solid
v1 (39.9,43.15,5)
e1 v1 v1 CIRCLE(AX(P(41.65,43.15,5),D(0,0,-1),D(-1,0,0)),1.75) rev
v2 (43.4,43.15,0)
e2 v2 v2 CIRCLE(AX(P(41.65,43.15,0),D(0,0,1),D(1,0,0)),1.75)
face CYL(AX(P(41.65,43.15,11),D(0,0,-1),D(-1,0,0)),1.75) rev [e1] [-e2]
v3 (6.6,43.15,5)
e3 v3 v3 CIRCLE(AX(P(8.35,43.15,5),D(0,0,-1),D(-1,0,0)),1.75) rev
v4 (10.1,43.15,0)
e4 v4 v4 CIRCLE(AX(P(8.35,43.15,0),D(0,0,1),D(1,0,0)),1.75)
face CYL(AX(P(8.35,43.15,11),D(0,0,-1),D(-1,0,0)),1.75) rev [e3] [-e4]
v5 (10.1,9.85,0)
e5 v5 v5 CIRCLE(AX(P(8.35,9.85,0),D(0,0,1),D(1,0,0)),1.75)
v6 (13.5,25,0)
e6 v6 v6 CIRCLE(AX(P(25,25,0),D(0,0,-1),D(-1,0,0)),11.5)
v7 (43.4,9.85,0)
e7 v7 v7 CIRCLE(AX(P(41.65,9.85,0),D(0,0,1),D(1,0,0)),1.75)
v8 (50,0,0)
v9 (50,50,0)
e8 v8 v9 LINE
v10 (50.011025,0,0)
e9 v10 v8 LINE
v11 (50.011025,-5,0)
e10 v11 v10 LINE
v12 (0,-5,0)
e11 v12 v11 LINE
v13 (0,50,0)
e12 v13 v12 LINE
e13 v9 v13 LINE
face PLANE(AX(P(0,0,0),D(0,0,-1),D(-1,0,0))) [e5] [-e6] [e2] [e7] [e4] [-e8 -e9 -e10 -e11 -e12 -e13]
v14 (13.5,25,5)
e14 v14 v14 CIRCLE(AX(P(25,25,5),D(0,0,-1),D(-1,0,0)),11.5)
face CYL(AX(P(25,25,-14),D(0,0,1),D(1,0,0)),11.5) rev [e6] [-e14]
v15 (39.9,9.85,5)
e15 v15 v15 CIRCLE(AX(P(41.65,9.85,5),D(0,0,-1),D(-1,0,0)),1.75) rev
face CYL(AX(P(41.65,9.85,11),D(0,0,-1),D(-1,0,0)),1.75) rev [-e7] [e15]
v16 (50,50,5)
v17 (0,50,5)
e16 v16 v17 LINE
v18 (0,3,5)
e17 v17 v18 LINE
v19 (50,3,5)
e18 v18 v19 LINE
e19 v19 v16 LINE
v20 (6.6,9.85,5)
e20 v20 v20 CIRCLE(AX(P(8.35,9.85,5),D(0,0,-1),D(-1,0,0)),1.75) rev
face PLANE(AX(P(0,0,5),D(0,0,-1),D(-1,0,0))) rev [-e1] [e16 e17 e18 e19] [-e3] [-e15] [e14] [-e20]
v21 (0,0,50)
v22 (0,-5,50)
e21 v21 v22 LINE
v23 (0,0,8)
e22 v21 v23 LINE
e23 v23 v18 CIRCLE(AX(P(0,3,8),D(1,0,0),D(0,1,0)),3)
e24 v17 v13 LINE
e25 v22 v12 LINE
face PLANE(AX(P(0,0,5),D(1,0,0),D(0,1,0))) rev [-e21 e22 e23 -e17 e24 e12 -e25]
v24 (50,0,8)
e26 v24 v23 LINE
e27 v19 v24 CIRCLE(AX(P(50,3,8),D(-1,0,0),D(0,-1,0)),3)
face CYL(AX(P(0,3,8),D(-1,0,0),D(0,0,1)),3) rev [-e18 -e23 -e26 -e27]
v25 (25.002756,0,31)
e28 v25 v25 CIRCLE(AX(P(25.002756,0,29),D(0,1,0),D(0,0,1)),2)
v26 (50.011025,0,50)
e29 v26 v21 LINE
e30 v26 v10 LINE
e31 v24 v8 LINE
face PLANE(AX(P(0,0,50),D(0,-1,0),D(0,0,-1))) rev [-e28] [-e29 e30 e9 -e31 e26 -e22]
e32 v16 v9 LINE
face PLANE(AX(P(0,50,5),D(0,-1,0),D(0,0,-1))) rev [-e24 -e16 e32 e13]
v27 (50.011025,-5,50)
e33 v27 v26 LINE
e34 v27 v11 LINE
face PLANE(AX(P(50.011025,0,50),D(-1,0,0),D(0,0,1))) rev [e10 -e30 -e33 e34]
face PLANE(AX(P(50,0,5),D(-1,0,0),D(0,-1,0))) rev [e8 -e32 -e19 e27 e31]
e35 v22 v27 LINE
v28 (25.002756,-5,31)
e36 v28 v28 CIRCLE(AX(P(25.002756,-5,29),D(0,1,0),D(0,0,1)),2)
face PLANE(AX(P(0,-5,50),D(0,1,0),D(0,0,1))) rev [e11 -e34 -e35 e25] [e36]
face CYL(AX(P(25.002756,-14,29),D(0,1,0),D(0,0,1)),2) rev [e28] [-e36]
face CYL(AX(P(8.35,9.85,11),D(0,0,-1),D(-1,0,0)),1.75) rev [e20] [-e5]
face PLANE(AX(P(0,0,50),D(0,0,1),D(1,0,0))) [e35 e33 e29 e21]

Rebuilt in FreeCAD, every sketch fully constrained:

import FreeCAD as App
import Part
import Sketcher

V = App.Vector
Q = App.Units.Quantity


def edges_at(feature, points):
    """Names of the edges that pass closest to the given points."""
    edges = feature.Shape.Edges
    near = lambda p: min(range(len(edges)), key=lambda i: edges[i].distToShape(Part.Vertex(*p))[0])
    return sorted({f"Edge{near(p) + 1}" for p in points})

doc = App.newDocument("Part")
body = doc.addObject("PartDesign::Body", "Body")

# Sketch on XY plane
sketch1 = doc.addObject("Sketcher::SketchObject", "Sketch")
body.addObject(sketch1)
sketch1.AttachmentSupport = (doc.XY_Plane, [""])
sketch1.MapMode = "FlatFace"
sketch1.addGeometry(Part.LineSegment(V(0, 50, 0), V(0, 0, 0)), False)
sketch1.addGeometry(Part.LineSegment(V(0, 0, 0), V(50, 0, 0)), False)
sketch1.addGeometry(Part.LineSegment(V(50, 0, 0), V(50, 50, 0)), False)
sketch1.addGeometry(Part.LineSegment(V(50, 50, 0), V(0, 50, 0)), False)
sketch1.addConstraint(Sketcher.Constraint("Coincident", 0, 2, 1, 1))
sketch1.addConstraint(Sketcher.Constraint("Coincident", 1, 2, 2, 1))
sketch1.addConstraint(Sketcher.Constraint("Coincident", 2, 2, 3, 1))
sketch1.addConstraint(Sketcher.Constraint("Coincident", 3, 2, 0, 1))
sketch1.addConstraint(Sketcher.Constraint("Vertical", 0))
sketch1.addConstraint(Sketcher.Constraint("Horizontal", 1))
sketch1.addConstraint(Sketcher.Constraint("Vertical", 2))
sketch1.addConstraint(Sketcher.Constraint("Horizontal", 3))
sketch1.addConstraint(Sketcher.Constraint("Coincident", 0, 2, -1, 1))
sketch1.addConstraint(Sketcher.Constraint("Equal", 3, 0))
sketch1.addConstraint(Sketcher.Constraint("DistanceX", 1, 1, 1, 2, Q("50 mm")))
pad1 = doc.addObject("PartDesign::Pad", "Pad")
body.addObject(pad1)
pad1.Profile = sketch1
pad1.Length = 5

# Sketch on XY plane
sketch2 = doc.addObject("Sketcher::SketchObject", "Sketch001")
body.addObject(sketch2)
sketch2.AttachmentSupport = (doc.XY_Plane, [""])
sketch2.MapMode = "FlatFace"
sketch2.addGeometry(Part.Circle(V(25, 25, 0), V(0, 0, 1), 12), False)
sketch2.addConstraint(Sketcher.Constraint("Diameter", 0, Q("23 mm")))
sketch2.addConstraint(Sketcher.Constraint("DistanceX", -1, 1, 0, 3, Q("25 mm")))
sketch2.addConstraint(Sketcher.Constraint("DistanceY", -1, 1, 0, 3, Q("25 mm")))
pocket1 = doc.addObject("PartDesign::Pocket", "Pocket")
body.addObject(pocket1)
pocket1.Profile = sketch2
pocket1.Type = "ThroughAll"
pocket1.Midplane = True

# Sketch on XY plane
sketch3 = doc.addObject("Sketcher::SketchObject", "Sketch002")
body.addObject(sketch3)
sketch3.AttachmentSupport = (doc.XY_Plane, [""])
sketch3.MapMode = "FlatFace"
sketch3.addGeometry(Part.LineSegment(V(0, 0, 0), V(0, -5, 0)), False)
sketch3.addGeometry(Part.LineSegment(V(0, -5, 0), V(50, -5, 0)), False)
sketch3.addGeometry(Part.LineSegment(V(50, -5, 0), V(50, 0, 0)), False)
sketch3.addGeometry(Part.LineSegment(V(50, 0, 0), V(0, 0, 0)), False)
sketch3.addConstraint(Sketcher.Constraint("Coincident", 0, 2, 1, 1))
sketch3.addConstraint(Sketcher.Constraint("Coincident", 1, 2, 2, 1))
sketch3.addConstraint(Sketcher.Constraint("Coincident", 2, 2, 3, 1))
sketch3.addConstraint(Sketcher.Constraint("Coincident", 3, 2, 0, 1))
sketch3.addConstraint(Sketcher.Constraint("Vertical", 0))
sketch3.addConstraint(Sketcher.Constraint("Horizontal", 1))
sketch3.addConstraint(Sketcher.Constraint("Vertical", 2))
sketch3.addConstraint(Sketcher.Constraint("Horizontal", 3))
sketch3.addConstraint(Sketcher.Constraint("Coincident", 3, 2, -1, 1))
sketch3.addConstraint(Sketcher.Constraint("DistanceY", 0, 2, 0, 1, Q("5 mm")))
sketch3.addConstraint(Sketcher.Constraint("DistanceX", 1, 1, 1, 2, Q("50.011025 mm")))
pad2 = doc.addObject("PartDesign::Pad", "Pad001")
body.addObject(pad2)
pad2.Profile = sketch3
pad2.Length = 50
doc.recompute()

fillet = doc.addObject("PartDesign::Fillet", "Fillet")
body.addObject(fillet)
fillet.Base = (pad2, edges_at(pad2, [(25, 0, 5)]))
fillet.Radius = 3

# Sketch on XY plane
sketch4 = doc.addObject("Sketcher::SketchObject", "Sketch003")
body.addObject(sketch4)
sketch4.AttachmentSupport = (doc.XY_Plane, [""])
sketch4.MapMode = "FlatFace"
sketch4.addGeometry(Part.Circle(V(8.3, 43.1, 0), V(0, 0, 1), 1.8), False)
sketch4.addGeometry(Part.Circle(V(41.6, 43.1, 0), V(0, 0, 1), 1.8), False)
sketch4.addGeometry(Part.Circle(V(41.6, 9.8, 0), V(0, 0, 1), 1.8), False)
sketch4.addGeometry(Part.Circle(V(8.3, 9.8, 0), V(0, 0, 1), 1.8), False)
sketch4.addConstraint(Sketcher.Constraint("Equal", 0, 1))
sketch4.addConstraint(Sketcher.Constraint("Equal", 1, 2))
sketch4.addConstraint(Sketcher.Constraint("Equal", 2, 3))
sketch4.addConstraint(Sketcher.Constraint("Horizontal", 0, 3, 1, 3))
sketch4.addConstraint(Sketcher.Constraint("Horizontal", 2, 3, 3, 3))
sketch4.addConstraint(Sketcher.Constraint("Vertical", 1, 3, 2, 3))
sketch4.addConstraint(Sketcher.Constraint("Vertical", 0, 3, 3, 3))
sketch4.addConstraint(Sketcher.Constraint("Diameter", 0, Q("3.5 mm")))
sketch4.addConstraint(Sketcher.Constraint("DistanceX", 0, 3, 1, 3, Q("33.3 mm")))
sketch4.addConstraint(Sketcher.Constraint("DistanceY", 2, 3, 1, 3, Q("33.3 mm")))
sketch4.addConstraint(Sketcher.Constraint("DistanceX", -1, 1, 0, 3, Q("8.35 mm")))
sketch4.addConstraint(Sketcher.Constraint("DistanceY", -1, 1, 0, 3, Q("43.15 mm")))
pocket2 = doc.addObject("PartDesign::Pocket", "Pocket001")
body.addObject(pocket2)
pocket2.Profile = sketch4
pocket2.Length = 11
pocket2.Reversed = True

# Sketch on XZ plane
sketch5 = doc.addObject("Sketcher::SketchObject", "Sketch004")
body.addObject(sketch5)
sketch5.AttachmentSupport = (doc.XZ_Plane, [""])
sketch5.MapMode = "FlatFace"
sketch5.addGeometry(Part.Circle(V(25, 29, 0), V(0, 0, 1), 2), False)
sketch5.addConstraint(Sketcher.Constraint("Diameter", 0, Q("4 mm")))
sketch5.addConstraint(Sketcher.Constraint("DistanceY", -1, 1, 0, 3, Q("29 mm")))
sketch5.addConstraint(Sketcher.Constraint("DistanceX", -1, 1, 0, 3, Q("25.002756 mm")))
pocket3 = doc.addObject("PartDesign::Pocket", "Pocket002")
body.addObject(pocket3)
pocket3.Profile = sketch5
pocket3.Length = 14
pocket3.Reversed = True

doc.recompute()
